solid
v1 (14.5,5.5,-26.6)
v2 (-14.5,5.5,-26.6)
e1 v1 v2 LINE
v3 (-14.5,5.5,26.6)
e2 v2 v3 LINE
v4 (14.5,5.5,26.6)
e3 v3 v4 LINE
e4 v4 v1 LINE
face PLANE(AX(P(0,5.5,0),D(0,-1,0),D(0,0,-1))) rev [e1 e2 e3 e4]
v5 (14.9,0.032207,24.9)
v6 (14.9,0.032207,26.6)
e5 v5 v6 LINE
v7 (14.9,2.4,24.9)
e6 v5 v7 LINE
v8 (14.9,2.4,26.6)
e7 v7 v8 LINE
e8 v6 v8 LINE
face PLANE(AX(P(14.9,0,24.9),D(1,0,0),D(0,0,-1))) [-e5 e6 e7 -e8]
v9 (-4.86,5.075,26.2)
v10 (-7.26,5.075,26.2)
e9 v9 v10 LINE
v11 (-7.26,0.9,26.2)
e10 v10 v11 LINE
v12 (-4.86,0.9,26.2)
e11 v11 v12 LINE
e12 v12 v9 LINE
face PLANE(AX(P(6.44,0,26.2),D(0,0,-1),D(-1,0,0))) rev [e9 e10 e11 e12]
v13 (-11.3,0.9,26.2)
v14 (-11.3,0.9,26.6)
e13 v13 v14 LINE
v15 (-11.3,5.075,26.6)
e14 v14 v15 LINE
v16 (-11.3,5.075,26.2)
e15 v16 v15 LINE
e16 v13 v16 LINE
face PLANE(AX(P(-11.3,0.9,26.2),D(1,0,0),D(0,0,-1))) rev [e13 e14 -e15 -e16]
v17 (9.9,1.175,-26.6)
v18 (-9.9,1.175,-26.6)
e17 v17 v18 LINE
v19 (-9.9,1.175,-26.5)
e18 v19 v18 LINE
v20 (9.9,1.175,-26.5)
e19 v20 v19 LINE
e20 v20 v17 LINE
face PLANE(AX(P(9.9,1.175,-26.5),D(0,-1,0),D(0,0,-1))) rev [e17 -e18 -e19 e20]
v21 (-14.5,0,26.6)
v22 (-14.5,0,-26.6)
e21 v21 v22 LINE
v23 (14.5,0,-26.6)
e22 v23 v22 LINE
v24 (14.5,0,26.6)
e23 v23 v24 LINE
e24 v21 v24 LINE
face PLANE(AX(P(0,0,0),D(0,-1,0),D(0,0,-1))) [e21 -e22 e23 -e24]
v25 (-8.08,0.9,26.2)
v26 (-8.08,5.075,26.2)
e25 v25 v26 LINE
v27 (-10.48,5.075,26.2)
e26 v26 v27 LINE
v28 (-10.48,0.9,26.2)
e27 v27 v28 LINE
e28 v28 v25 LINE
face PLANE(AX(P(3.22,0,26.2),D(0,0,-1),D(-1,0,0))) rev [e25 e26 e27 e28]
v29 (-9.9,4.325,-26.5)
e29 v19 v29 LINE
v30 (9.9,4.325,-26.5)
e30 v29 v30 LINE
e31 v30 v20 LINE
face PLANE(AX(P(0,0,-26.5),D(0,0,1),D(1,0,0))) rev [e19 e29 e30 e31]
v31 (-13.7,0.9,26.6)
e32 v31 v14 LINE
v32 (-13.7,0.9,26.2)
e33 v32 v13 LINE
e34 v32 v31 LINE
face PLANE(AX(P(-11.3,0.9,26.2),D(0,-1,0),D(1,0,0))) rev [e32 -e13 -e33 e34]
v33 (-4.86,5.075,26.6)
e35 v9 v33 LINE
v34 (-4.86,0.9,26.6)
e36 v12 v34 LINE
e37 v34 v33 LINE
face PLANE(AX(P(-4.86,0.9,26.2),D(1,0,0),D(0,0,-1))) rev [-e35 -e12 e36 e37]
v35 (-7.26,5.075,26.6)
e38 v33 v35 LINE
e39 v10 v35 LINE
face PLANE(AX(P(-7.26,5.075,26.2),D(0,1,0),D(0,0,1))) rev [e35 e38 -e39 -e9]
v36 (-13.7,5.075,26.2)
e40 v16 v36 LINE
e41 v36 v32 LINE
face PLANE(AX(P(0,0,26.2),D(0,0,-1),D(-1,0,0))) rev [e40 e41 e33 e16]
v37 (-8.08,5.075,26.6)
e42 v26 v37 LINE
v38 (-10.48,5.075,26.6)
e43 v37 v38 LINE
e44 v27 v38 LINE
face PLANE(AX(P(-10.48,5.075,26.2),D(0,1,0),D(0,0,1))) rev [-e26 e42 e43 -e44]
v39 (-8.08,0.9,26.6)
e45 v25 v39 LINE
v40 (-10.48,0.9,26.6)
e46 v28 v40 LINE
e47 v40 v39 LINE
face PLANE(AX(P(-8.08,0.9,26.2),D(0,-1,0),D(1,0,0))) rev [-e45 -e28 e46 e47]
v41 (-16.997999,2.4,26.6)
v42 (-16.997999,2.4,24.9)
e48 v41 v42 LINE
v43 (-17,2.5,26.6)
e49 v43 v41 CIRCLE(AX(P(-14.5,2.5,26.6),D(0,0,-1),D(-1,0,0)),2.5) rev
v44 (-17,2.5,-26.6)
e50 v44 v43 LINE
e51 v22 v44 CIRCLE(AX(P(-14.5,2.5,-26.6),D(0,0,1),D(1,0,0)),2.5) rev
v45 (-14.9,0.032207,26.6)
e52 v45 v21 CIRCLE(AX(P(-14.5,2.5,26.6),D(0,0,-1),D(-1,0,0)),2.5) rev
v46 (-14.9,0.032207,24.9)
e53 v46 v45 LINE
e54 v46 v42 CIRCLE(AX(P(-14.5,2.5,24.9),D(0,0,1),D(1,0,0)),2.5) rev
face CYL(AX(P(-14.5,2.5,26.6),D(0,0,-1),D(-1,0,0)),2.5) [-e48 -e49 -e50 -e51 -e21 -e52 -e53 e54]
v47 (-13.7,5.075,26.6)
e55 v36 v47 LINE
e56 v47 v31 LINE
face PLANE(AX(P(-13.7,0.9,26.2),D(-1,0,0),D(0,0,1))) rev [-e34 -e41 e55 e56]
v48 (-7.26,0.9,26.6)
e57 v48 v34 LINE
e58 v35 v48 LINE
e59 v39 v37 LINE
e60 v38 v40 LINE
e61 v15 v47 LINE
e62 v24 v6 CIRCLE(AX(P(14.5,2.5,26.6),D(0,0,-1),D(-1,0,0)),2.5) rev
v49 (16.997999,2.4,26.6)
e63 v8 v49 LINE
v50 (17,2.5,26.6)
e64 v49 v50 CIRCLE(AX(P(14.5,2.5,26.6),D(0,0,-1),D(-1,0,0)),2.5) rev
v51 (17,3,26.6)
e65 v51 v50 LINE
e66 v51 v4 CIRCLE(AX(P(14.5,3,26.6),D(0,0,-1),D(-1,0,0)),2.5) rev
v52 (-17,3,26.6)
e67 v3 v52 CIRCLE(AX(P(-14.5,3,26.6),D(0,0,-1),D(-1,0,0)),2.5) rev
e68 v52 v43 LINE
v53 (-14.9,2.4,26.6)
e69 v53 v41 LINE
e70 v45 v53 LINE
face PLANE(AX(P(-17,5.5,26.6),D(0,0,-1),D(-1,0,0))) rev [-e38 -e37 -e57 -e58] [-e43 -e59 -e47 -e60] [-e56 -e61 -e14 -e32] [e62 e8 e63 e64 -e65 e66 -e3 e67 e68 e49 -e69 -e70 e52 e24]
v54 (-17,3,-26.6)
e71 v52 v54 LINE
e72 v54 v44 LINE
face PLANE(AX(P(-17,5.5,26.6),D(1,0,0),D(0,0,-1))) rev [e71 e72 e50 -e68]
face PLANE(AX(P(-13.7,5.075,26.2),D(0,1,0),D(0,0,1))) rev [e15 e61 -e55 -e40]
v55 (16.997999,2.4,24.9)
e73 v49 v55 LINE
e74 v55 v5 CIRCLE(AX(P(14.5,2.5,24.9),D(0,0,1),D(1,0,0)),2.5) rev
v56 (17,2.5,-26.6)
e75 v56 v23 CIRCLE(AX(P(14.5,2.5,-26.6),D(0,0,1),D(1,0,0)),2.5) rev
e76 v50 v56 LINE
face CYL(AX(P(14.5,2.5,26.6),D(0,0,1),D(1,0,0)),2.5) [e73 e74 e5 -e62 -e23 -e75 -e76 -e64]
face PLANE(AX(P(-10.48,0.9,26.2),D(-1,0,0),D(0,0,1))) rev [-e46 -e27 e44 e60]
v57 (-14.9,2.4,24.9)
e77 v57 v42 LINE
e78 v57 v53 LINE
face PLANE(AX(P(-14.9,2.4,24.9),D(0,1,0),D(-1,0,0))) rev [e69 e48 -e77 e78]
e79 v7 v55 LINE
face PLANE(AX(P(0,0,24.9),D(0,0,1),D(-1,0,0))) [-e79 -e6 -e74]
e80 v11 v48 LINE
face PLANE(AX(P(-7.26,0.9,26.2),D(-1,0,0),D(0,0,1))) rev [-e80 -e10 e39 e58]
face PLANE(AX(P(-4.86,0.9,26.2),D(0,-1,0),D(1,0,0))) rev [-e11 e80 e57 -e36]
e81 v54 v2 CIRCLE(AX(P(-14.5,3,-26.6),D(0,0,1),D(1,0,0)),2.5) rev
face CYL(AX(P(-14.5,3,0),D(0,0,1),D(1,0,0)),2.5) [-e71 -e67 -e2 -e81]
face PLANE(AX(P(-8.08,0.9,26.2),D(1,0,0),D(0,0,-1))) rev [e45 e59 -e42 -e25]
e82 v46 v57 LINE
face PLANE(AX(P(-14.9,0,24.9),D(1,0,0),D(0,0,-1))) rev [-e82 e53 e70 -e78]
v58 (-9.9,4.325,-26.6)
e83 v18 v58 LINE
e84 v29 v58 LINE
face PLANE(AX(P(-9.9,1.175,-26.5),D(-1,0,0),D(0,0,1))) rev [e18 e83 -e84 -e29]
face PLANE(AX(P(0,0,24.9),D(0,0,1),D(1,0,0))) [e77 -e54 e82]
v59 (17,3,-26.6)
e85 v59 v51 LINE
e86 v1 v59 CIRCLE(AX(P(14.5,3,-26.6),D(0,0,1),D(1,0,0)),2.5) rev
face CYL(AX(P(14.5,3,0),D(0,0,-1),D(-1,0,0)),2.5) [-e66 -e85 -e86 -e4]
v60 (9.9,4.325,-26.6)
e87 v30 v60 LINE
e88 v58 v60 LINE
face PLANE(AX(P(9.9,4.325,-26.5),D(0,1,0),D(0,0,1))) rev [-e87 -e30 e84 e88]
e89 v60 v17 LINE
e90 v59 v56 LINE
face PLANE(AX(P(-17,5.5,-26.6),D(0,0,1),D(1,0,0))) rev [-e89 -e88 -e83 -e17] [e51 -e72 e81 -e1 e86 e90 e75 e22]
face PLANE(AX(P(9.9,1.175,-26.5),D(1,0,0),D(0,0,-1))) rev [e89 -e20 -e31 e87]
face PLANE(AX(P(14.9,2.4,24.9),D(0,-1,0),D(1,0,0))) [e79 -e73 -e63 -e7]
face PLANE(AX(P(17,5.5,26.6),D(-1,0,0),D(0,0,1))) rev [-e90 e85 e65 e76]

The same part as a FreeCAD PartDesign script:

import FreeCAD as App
import Part
import Sketcher
from FreeCAD import Vector


def edges_at(feature, points):
    """Names of the edges that pass closest to the given points."""
    edges = feature.Shape.Edges
    near = lambda p: min(range(len(edges)), key=lambda i: edges[i].distToShape(Part.Vertex(*p))[0])
    return sorted({f"Edge{near(p) + 1}" for p in points})


def add_polygon(sketch, points):
    """Adds a closed chain of lines whose ends are joined by coincident constraints."""
    first, n = sketch.GeometryCount, len(points)
    for a, b in zip(points, points[1:] + points[:1]):
        sketch.addGeometry(Part.LineSegment(App.Vector(*a, 0), App.Vector(*b, 0)), False)
    for i in range(n):
        sketch.addConstraint(Sketcher.Constraint("Coincident", first + i, 2, first + (i + 1) % n, 1))

doc = App.newDocument("Part")
body = doc.addObject("PartDesign::Body", "Body")

sketch1 = body.newObject("Sketcher::SketchObject", "Sketch")
sketch1.AttachmentSupport = (doc.getObject("XZ_Plane"), [""])
sketch1.MapMode = "FlatFace"
add_polygon(sketch1, [(-17, -27), (-17, 27), (17, 27), (17, -27)])
sketch1.addConstraint(Sketcher.Constraint("Vertical", 0))
sketch1.addConstraint(Sketcher.Constraint("Horizontal", 1))
sketch1.addConstraint(Sketcher.Constraint("Vertical", 2))
sketch1.addConstraint(Sketcher.Constraint("Horizontal", 3))
sketch1.addConstraint(Sketcher.Constraint("Symmetric", 0, 2, 2, 2, -1, 1))
sketch1.addConstraint(Sketcher.Constraint("DistanceX", 1, 1, 1, 2, 34.0))
sketch1.addConstraint(Sketcher.Constraint("DistanceY", 0, 1, 0, 2, 53.2))
pad1 = body.newObject("PartDesign::Pad", "Pad")
pad1.Profile = sketch1
pad1.Length = 5.5
pad1.Reversed = True
doc.recompute()

fillet = body.newObject("PartDesign::Fillet", "Fillet")
fillet.Base = (pad1, edges_at(pad1, [
    (-17, 5.5, 0),
    (17, 5.5, 0),
    (-17, 0, 0),
    (17, 0, 0),
]))
fillet.Radius = 2.5

sketch2 = body.newObject("Sketcher::SketchObject", "Sketch001")
sketch2.AttachmentSupport = (doc.getObject("XY_Plane"), [""])
sketch2.MapMode = "FlatFace"
sketch2.AttachmentOffset = App.Placement(Vector(0, 0, 26.6), App.Rotation())
add_polygon(sketch2, [(-13.7, 5.1), (-13.7, 0.9), (-11.3, 0.9), (-11.3, 5.1)])
sketch2.addConstraint(Sketcher.Constraint("Vertical", 0))
sketch2.addConstraint(Sketcher.Constraint("Horizontal", 1))
sketch2.addConstraint(Sketcher.Constraint("Vertical", 2))
sketch2.addConstraint(Sketcher.Constraint("Horizontal", 3))
sketch2.addConstraint(Sketcher.Constraint("DistanceX", 1, 1, 1, 2, 2.4))
sketch2.addConstraint(Sketcher.Constraint("DistanceX", 0, 2, -1, 1, 13.7))
sketch2.addConstraint(Sketcher.Constraint("DistanceY", -1, 1, 0, 2, 0.9))
sketch2.addConstraint(Sketcher.Constraint("DistanceY", 0, 2, 0, 1, 4.175))
pocket1 = body.newObject("PartDesign::Pocket", "Pocket")
pocket1.Profile = sketch2
pocket1.Length = 0.4
doc.recompute()

linearpattern = body.newObject("PartDesign::LinearPattern", "LinearPattern")
linearpattern.Originals = [pocket1]
linearpattern.Direction = (doc.getObject("X_Axis"), [""])
linearpattern.Mode = "offset"
linearpattern.Offset = 3.22
linearpattern.Occurrences = 3
body.Tip = linearpattern

sketch3 = body.newObject("Sketcher::SketchObject", "Sketch002")
sketch3.AttachmentSupport = (doc.getObject("XY_Plane"), [""])
sketch3.MapMode = "FlatFace"
sketch3.AttachmentOffset = App.Placement(Vector(0, 0, 26.6), App.Rotation())
add_polygon(sketch3, [(-19, 2.4), (-19, 0), (-14.9, 0), (-14.9, 2.4)])
sketch3.addConstraint(Sketcher.Constraint("Vertical", 0))
sketch3.addConstraint(Sketcher.Constraint("Horizontal", 1))
sketch3.addConstraint(Sketcher.Constraint("Vertical", 2))
sketch3.addConstraint(Sketcher.Constraint("Horizontal", 3))
sketch3.addConstraint(Sketcher.Constraint("PointOnObject", 0, 2, -1))
sketch3.addConstraint(Sketcher.Constraint("DistanceY", 0, 2, 0, 1, 2.4))
sketch3.addConstraint(Sketcher.Constraint("DistanceX", 1, 2, -1, 1, 14.9))
sketch3.addConstraint(Sketcher.Constraint("DistanceX", 1, 1, 1, 2, 4.132195))
pocket2 = body.newObject("PartDesign::Pocket", "Pocket001")
pocket2.Profile = sketch3
pocket2.Length = 1.7
doc.recompute()

mirrored = body.newObject("PartDesign::Mirrored", "Mirrored")
mirrored.Originals = [pocket2]
mirrored.MirrorPlane = (doc.getObject("YZ_Plane"), [""])
body.Tip = mirrored

sketch4 = body.newObject("Sketcher::SketchObject", "Sketch003")
sketch4.AttachmentSupport = (doc.getObject("XY_Plane"), [""])
sketch4.MapMode = "FlatFace"
sketch4.AttachmentOffset = App.Placement(Vector(0, 0, -26.6), App.Rotation())
add_polygon(sketch4, [(9.9, 4.3), (9.9, 1.2), (-9.9, 1.2), (-9.9, 4.3)])
sketch4.addConstraint(Sketcher.Constraint("Vertical", 0))
sketch4.addConstraint(Sketcher.Constraint("Horizontal", 1))
sketch4.addConstraint(Sketcher.Constraint("Vertical", 2))
sketch4.addConstraint(Sketcher.Constraint("Horizontal", 3))
sketch4.addConstraint(Sketcher.Constraint("DistanceX", 1, 2, 1, 1, 19.8))
sketch4.addConstraint(Sketcher.Constraint("DistanceY", 0, 2, 0, 1, 3.15))
sketch4.addConstraint(Sketcher.Constraint("DistanceX", -1, 1, 0, 2, 9.9))
sketch4.addConstraint(Sketcher.Constraint("DistanceY", -1, 1, 0, 2, 1.175))
pocket3 = body.newObject("PartDesign::Pocket", "Pocket002")
pocket3.Profile = sketch4
pocket3.Length = 0.1
pocket3.Reversed = True

doc.recompute()
